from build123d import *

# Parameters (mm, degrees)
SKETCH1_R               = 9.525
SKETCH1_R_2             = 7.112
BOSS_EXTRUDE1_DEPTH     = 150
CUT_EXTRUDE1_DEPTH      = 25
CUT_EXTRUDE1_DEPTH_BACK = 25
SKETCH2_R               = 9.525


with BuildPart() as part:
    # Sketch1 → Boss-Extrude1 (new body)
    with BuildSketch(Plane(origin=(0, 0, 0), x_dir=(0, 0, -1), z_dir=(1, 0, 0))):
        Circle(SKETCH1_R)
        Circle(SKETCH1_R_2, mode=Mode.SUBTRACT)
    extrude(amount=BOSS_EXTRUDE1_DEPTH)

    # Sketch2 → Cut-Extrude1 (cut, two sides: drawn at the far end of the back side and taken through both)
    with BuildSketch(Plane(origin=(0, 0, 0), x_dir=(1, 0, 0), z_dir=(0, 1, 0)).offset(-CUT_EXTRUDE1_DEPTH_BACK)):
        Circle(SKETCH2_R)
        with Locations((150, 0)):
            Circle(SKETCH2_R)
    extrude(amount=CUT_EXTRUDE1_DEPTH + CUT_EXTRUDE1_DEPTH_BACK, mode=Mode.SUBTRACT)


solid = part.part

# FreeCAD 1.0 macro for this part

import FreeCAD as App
import Part
import Sketcher
from FreeCAD import Vector

doc = App.newDocument("Part")
params = doc.addObject("Spreadsheet::Sheet", "Params")
for row, (alias, value) in enumerate([
    ("sketch1_diameter", "19.05 mm"),
    ("pad1_length", "150 mm"),
    ("sketch2_diameter", "19.05 mm"),
], start=1):
    params.set(f"A{row}", alias)
    params.set(f"B{row}", "=" + value)
    params.setAlias(f"B{row}", alias)

body = doc.addObject("PartDesign::Body", "Body")

sketch1 = body.newObject("Sketcher::SketchObject", "Sketch")
sketch1.AttachmentSupport = (doc.getObject("YZ_Plane"), [""])
sketch1.MapMode = "FlatFace"
sketch1.addGeometry([
    Part.Circle(Vector(0, 0, 0), Vector(0, 0, 1), 10),
    Part.Circle(Vector(0, 0, 0), Vector(0, 0, 1), 7),
], False)
sketch1.addConstraint([
    Sketcher.Constraint("Coincident", 0, 3, -1, 1),
    Sketcher.Constraint("Coincident", 1, 3, -1, 1),
    Sketcher.Constraint("Diameter", 0, 19.05),
    Sketcher.Constraint("Diameter", 1, 14.224),
])
sketch1.setExpression("Constraints[2]", "Params.sketch1_diameter")
pad1 = body.newObject("PartDesign::Pad", "Pad")
pad1.Profile = sketch1
pad1.setExpression("Length", "Params.pad1_length")

sketch2 = body.newObject("Sketcher::SketchObject", "Sketch001")
sketch2.AttachmentSupport = (doc.getObject("XZ_Plane"), [""])
sketch2.MapMode = "FlatFace"
sketch2.addGeometry([
    Part.Circle(Vector(0, 0, 0), Vector(0, 0, 1), 10),
    Part.Circle(Vector(150, 0, 0), Vector(0, 0, 1), 10),
], False)
sketch2.addConstraint([
    Sketcher.Constraint("Coincident", 0, 3, -1, 1),
    Sketcher.Constraint("Equal", 0, 1),
    Sketcher.Constraint("PointOnObject", 1, 3, -1),
    Sketcher.Constraint("Diameter", 0, 19.05),
    Sketcher.Constraint("DistanceX", -1, 1, 1, 3, 150.0),
])
sketch2.setExpression("Constraints[3]", "Params.sketch2_diameter")
pocket1 = body.newObject("PartDesign::Pocket", "Pocket")
pocket1.Profile = sketch2
pocket1.Type = "ThroughAll"
pocket1.Midplane = True

doc.recompute()
